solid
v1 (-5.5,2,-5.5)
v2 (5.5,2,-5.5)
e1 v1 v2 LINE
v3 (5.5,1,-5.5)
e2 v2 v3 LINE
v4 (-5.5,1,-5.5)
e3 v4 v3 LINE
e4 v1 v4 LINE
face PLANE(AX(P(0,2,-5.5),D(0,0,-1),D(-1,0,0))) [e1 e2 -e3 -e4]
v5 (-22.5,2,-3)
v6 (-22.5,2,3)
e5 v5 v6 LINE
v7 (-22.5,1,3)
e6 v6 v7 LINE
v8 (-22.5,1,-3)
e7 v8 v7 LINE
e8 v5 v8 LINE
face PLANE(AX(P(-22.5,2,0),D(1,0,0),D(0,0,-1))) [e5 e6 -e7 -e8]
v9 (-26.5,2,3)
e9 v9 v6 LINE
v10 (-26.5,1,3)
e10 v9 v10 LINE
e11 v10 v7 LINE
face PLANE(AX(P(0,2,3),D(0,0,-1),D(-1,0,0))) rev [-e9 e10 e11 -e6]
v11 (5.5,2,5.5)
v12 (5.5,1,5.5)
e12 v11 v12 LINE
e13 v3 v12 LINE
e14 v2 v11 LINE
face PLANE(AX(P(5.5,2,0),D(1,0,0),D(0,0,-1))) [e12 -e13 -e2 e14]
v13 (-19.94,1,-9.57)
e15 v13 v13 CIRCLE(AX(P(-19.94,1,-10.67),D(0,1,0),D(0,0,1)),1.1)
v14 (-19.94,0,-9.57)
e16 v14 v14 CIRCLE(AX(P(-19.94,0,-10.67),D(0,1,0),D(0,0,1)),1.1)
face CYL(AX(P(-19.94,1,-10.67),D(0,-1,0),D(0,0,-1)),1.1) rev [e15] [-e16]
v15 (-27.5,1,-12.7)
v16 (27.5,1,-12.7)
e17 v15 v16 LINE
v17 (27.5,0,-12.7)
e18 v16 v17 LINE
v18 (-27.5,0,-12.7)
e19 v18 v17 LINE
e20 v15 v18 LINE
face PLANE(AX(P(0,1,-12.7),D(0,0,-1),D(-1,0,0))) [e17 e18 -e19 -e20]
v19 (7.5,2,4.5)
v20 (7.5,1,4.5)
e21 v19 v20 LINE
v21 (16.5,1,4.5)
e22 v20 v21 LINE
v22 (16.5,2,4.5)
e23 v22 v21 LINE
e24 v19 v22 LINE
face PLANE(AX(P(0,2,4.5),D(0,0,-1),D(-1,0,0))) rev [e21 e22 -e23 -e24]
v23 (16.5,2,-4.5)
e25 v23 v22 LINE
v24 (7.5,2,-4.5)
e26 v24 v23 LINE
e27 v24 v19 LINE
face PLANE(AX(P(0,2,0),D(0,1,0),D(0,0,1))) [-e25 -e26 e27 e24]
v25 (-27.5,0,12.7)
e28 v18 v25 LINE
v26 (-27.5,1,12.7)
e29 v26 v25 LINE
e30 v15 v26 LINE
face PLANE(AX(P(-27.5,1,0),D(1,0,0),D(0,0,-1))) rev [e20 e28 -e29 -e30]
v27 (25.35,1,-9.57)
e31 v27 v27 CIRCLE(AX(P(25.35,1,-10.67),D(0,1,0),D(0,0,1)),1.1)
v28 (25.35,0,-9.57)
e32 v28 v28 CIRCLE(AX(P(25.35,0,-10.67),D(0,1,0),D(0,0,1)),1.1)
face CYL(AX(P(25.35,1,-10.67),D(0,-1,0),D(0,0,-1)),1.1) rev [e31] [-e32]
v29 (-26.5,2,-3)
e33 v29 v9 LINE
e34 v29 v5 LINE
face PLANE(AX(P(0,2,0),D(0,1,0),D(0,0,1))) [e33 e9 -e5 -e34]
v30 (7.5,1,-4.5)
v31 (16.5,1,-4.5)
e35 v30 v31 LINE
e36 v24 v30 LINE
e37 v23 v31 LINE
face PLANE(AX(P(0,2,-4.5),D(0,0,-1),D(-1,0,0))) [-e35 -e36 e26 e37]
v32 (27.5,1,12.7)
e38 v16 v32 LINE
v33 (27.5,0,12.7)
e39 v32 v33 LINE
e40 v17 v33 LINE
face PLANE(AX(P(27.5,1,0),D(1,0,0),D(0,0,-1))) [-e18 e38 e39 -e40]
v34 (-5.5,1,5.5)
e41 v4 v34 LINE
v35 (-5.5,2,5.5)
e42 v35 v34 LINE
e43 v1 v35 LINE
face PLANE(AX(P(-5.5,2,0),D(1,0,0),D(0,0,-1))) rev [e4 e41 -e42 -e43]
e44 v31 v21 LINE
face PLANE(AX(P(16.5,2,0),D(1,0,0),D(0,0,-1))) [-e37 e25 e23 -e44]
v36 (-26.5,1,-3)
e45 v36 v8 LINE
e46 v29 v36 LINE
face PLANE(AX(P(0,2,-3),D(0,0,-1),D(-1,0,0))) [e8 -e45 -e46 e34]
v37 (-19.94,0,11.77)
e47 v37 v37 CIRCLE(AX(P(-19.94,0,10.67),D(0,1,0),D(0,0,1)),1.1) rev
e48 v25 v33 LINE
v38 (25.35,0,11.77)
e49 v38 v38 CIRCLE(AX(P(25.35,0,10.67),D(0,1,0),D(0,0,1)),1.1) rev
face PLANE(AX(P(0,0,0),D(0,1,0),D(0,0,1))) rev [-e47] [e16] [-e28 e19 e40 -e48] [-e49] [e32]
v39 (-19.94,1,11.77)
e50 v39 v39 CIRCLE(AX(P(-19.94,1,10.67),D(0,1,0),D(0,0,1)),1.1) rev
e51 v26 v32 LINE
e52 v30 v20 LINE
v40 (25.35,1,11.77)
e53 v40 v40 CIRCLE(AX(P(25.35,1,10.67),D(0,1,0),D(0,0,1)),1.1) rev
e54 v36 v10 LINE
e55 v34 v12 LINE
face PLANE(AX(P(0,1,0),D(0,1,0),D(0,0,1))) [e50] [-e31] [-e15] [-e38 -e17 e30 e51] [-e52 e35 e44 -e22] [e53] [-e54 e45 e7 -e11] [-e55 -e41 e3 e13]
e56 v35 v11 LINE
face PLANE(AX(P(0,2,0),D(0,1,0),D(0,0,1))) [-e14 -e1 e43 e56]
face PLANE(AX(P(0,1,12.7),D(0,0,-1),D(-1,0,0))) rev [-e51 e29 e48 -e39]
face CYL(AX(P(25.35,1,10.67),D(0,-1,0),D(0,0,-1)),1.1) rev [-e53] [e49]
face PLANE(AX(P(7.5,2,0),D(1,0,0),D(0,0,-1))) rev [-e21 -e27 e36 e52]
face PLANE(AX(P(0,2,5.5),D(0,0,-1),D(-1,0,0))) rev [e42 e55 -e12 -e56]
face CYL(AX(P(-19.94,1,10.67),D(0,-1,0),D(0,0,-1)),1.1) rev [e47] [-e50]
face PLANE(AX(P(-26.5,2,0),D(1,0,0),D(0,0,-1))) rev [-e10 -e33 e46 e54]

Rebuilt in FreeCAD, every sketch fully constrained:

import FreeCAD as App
import Part
import Sketcher


def add_polygon(sketch, points):
    """Adds a closed chain of lines whose ends are joined by coincident constraints."""
    first, n = sketch.GeometryCount, len(points)
    for a, b in zip(points, points[1:] + points[:1]):
        sketch.addGeometry(Part.LineSegment(App.Vector(*a, 0), App.Vector(*b, 0)), False)
    for i in range(n):
        sketch.addConstraint(Sketcher.Constraint("Coincident", first + i, 2, first + (i + 1) % n, 1))

doc = App.newDocument("Part")
params = doc.addObject("Spreadsheet::Sheet", "Params")
for row, (alias, value) in enumerate([
    ("sketch1_diameter", "2.2 mm"),
    ("sketch1_width", "55 mm"),
    ("sketch1_width2", "4 mm"),
    ("sketch1_width3", "11 mm"),
    ("sketch1_width4", "9 mm"),
    ("pad1_length", "1 mm"),
    ("sketch2_width", "11 mm"),
    ("sketch2_width2", "9 mm"),
    ("sketch2_width3", "4 mm"),
    ("sketch2_height", "6 mm"),
    ("pad2_length", "2 mm"),
], start=1):
    params.set(f"A{row}", alias)
    params.set(f"B{row}", "=" + value)
    params.setAlias(f"B{row}", alias)

body = doc.addObject("PartDesign::Body", "Body")

# Sketch on XZ plane
sketch1 = body.newObject("Sketcher::SketchObject", "Sketch")
sketch1.AttachmentSupport = (doc.getObject("XZ_Plane"), [""])
sketch1.MapMode = "FlatFace"
add_polygon(sketch1, [(-27.5, -12.7), (-27.5, 12.7), (27.5, 12.7), (27.5, -12.7)])  # lines 0-3
sketch1.addGeometry(Part.Circle(App.Vector(-19.9, 10.7, 0), App.Vector(0, 0, 1), 1.1), False)  # 4
add_polygon(sketch1, [(-22.5, 3), (-26.5, 3), (-26.5, -3), (-22.5, -3)])  # lines 5-8
sketch1.addGeometry(Part.Circle(App.Vector(25.4, 10.7, 0), App.Vector(0, 0, 1), 1.1), False)  # 9
add_polygon(sketch1, [(5.5, 5.5), (-5.5, 5.5), (-5.5, -5.5), (5.5, -5.5)])  # lines 10-13
add_polygon(sketch1, [(16.5, 4.5), (7.5, 4.5), (7.5, -4.5), (16.5, -4.5)])  # lines 14-17
sketch1.addGeometry(Part.Circle(App.Vector(-19.9, -10.7, 0), App.Vector(0, 0, 1), 1.1), False)  # 18
sketch1.addGeometry(Part.Circle(App.Vector(25.4, -10.7, 0), App.Vector(0, 0, 1), 1.1), False)  # 19
sketch1.addConstraint(Sketcher.Constraint("Vertical", 0))
sketch1.addConstraint(Sketcher.Constraint("Horizontal", 1))
sketch1.addConstraint(Sketcher.Constraint("Vertical", 2))
sketch1.addConstraint(Sketcher.Constraint("Horizontal", 3))
sketch1.addConstraint(Sketcher.Constraint("Horizontal", 5))
sketch1.addConstraint(Sketcher.Constraint("Vertical", 6))
sketch1.addConstraint(Sketcher.Constraint("Horizontal", 7))
sketch1.addConstraint(Sketcher.Constraint("Vertical", 8))
sketch1.addConstraint(Sketcher.Constraint("Horizontal", 10))
sketch1.addConstraint(Sketcher.Constraint("Vertical", 11))
sketch1.addConstraint(Sketcher.Constraint("Horizontal", 12))
sketch1.addConstraint(Sketcher.Constraint("Vertical", 13))
sketch1.addConstraint(Sketcher.Constraint("Horizontal", 14))
sketch1.addConstraint(Sketcher.Constraint("Vertical", 15))
sketch1.addConstraint(Sketcher.Constraint("Horizontal", 16))
sketch1.addConstraint(Sketcher.Constraint("Vertical", 17))
sketch1.addConstraint(Sketcher.Constraint("Equal", 4, 9))
sketch1.addConstraint(Sketcher.Constraint("Equal", 9, 18))
sketch1.addConstraint(Sketcher.Constraint("Equal", 18, 19))
sketch1.addConstraint(Sketcher.Constraint("Symmetric", 0, 2, 2, 2, -1, 1))
sketch1.addConstraint(Sketcher.Constraint("Symmetric", 10, 2, 12, 2, -1, 1))
sketch1.addConstraint(Sketcher.Constraint("Symmetric", 4, 3, 18, 3, -1))
sketch1.addConstraint(Sketcher.Constraint("Symmetric", 9, 3, 19, 3, -1))
sketch1.addConstraint(Sketcher.Constraint("Horizontal", 4, 3, 9, 3))
sketch1.addConstraint(Sketcher.Constraint("Equal", 12, 11))
sketch1.addConstraint(Sketcher.Constraint("Equal", 16, 15))
sketch1.addConstraint(Sketcher.Constraint("Diameter", 4, 2.2))
sketch1.addConstraint(Sketcher.Constraint("DistanceX", 1, 1, 1, 2, 55.0))
sketch1.addConstraint(Sketcher.Constraint("DistanceX", 5, 2, 5, 1, 4.0))
sketch1.addConstraint(Sketcher.Constraint("DistanceX", 10, 2, 10, 1, 11.0))
sketch1.addConstraint(Sketcher.Constraint("DistanceX", 14, 2, 14, 1, 9.0))
sketch1.addConstraint(Sketcher.Constraint("DistanceY", 6, 2, 6, 1, 6.0))
sketch1.addConstraint(Sketcher.Constraint("DistanceY", 0, 1, 0, 2, 25.4))
sketch1.addConstraint(Sketcher.Constraint("DistanceY", -1, 1, 5, 2, 3.0))
sketch1.addConstraint(Sketcher.Constraint("DistanceX", 0, 2, 5, 2, 1.0))
sketch1.addConstraint(Sketcher.Constraint("DistanceX", 13, 2, 14, 2, 2.0))
sketch1.addConstraint(Sketcher.Constraint("DistanceY", 14, 2, 13, 2, 1.0))
sketch1.addConstraint(Sketcher.Constraint("DistanceX", 4, 3, -1, 1, 19.94))
sketch1.addConstraint(Sketcher.Constraint("DistanceY", -1, 1, 4, 3, 10.67))
sketch1.addConstraint(Sketcher.Constraint("DistanceX", -1, 1, 9, 3, 25.35))
sketch1.setExpression("Constraints[42]", "Params.sketch1_diameter")
sketch1.setExpression("Constraints[43]", "Params.sketch1_width")
sketch1.setExpression("Constraints[44]", "Params.sketch1_width2")
sketch1.setExpression("Constraints[45]", "Params.sketch1_width3")
sketch1.setExpression("Constraints[46]", "Params.sketch1_width4")
pad1 = body.newObject("PartDesign::Pad", "Pad")
pad1.Profile = sketch1
pad1.setExpression("Length", "Params.pad1_length")
pad1.Reversed = True

# Sketch on XZ plane
sketch2 = body.newObject("Sketcher::SketchObject", "Sketch001")
sketch2.AttachmentSupport = (doc.getObject("XZ_Plane"), [""])
sketch2.MapMode = "FlatFace"
add_polygon(sketch2, [(-5.5, -5.5), (-5.5, 5.5), (5.5, 5.5), (5.5, -5.5)])  # lines 0-3
add_polygon(sketch2, [(7.5, -4.5), (7.5, 4.5), (16.5, 4.5), (16.5, -4.5)])  # lines 4-7
add_polygon(sketch2, [(-26.5, -3), (-26.5, 3), (-22.5, 3), (-22.5, -3)])  # lines 8-11
sketch2.addConstraint(Sketcher.Constraint("Vertical", 0))
sketch2.addConstraint(Sketcher.Constraint("Horizontal", 1))
sketch2.addConstraint(Sketcher.Constraint("Vertical", 2))
sketch2.addConstraint(Sketcher.Constraint("Horizontal", 3))
sketch2.addConstraint(Sketcher.Constraint("Vertical", 4))
sketch2.addConstraint(Sketcher.Constraint("Horizontal", 5))
sketch2.addConstraint(Sketcher.Constraint("Vertical", 6))
sketch2.addConstraint(Sketcher.Constraint("Horizontal", 7))
sketch2.addConstraint(Sketcher.Constraint("Vertical", 8))
sketch2.addConstraint(Sketcher.Constraint("Horizontal", 9))
sketch2.addConstraint(Sketcher.Constraint("Vertical", 10))
sketch2.addConstraint(Sketcher.Constraint("Horizontal", 11))
sketch2.addConstraint(Sketcher.Constraint("Symmetric", 0, 2, 2, 2, -1, 1))
sketch2.addConstraint(Sketcher.Constraint("Equal", 3, 0))
sketch2.addConstraint(Sketcher.Constraint("Equal", 7, 4))
sketch2.addConstraint(Sketcher.Constraint("DistanceX", 1, 1, 1, 2, 11.0))
sketch2.addConstraint(Sketcher.Constraint("DistanceX", 5, 1, 5, 2, 9.0))
sketch2.addConstraint(Sketcher.Constraint("DistanceX", 9, 1, 9, 2, 4.0))
sketch2.addConstraint(Sketcher.Constraint("DistanceY", 8, 1, 8, 2, 6.0))
sketch2.addConstraint(Sketcher.Constraint("DistanceY", -1, 1, 8, 2, 3.0))
sketch2.addConstraint(Sketcher.Constraint("DistanceX", 1, 2, 4, 2, 2.0))
sketch2.addConstraint(Sketcher.Constraint("DistanceY", 4, 2, 1, 2, 1.0))
sketch2.addConstraint(Sketcher.Constraint("DistanceX", 8, 2, 0, 2, 21.0))
sketch2.setExpression("Constraints[27]", "Params.sketch2_width")
sketch2.setExpression("Constraints[28]", "Params.sketch2_width2")
sketch2.setExpression("Constraints[29]", "Params.sketch2_width3")
sketch2.setExpression("Constraints[30]", "Params.sketch2_height")
pad2 = body.newObject("PartDesign::Pad", "Pad001")
pad2.Profile = sketch2
pad2.setExpression("Length", "Params.pad2_length")
pad2.Reversed = True

doc.recompute()
